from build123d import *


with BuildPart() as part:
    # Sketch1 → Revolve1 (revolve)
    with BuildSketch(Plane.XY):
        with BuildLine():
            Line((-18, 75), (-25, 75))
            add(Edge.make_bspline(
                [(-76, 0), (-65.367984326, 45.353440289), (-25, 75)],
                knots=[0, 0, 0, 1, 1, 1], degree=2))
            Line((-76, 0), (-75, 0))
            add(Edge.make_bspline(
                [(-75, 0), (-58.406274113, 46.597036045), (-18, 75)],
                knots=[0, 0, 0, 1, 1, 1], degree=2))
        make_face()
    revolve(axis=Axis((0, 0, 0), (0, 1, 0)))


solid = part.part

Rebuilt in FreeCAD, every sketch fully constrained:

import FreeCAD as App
import Part
import Sketcher

doc = App.newDocument("Part")
body = doc.addObject("PartDesign::Body", "Body")

# Sketch on XY plane
sketch1 = body.newObject("Sketcher::SketchObject", "Sketch")
sketch1.AttachmentSupport = (doc.getObject("XY_Plane"), [""])
sketch1.MapMode = "FlatFace"
sketch1.addGeometry(Part.LineSegment(App.Vector(-18, 75, 0), App.Vector(-25, 75, 0)), False)
sketch1.addGeometry(Part.BSplineCurve([App.Vector(-76, 0, 0), App.Vector(-65.367984, 45.35344, 0), App.Vector(-25, 75, 0)], [3, 3], [0, 1], False, 2, [1, 1, 1], False), False)
sketch1.addGeometry(Part.LineSegment(App.Vector(-76, 0, 0), App.Vector(-75, 0, 0)), False)
sketch1.addGeometry(Part.BSplineCurve([App.Vector(-75, 0, 0), App.Vector(-58.406274, 46.597036, 0), App.Vector(-18, 75, 0)], [3, 3], [0, 1], False, 2, [1, 1, 1], False), False)
sketch1.addConstraint(Sketcher.Constraint("Block", 1))
sketch1.addConstraint(Sketcher.Constraint("Block", 3))
sketch1.addConstraint(Sketcher.Constraint("Coincident", 0, 2, 1, 2))
sketch1.addConstraint(Sketcher.Constraint("Coincident", 1, 1, 2, 1))
sketch1.addConstraint(Sketcher.Constraint("Coincident", 2, 2, 3, 1))
sketch1.addConstraint(Sketcher.Constraint("Coincident", 3, 2, 0, 1))
revolution = body.newObject("PartDesign::Revolution", "Revolution")
revolution.Profile = sketch1
revolution.ReferenceAxis = (sketch1, ["V_Axis"])
revolution.Angle = 360

doc.recompute()
